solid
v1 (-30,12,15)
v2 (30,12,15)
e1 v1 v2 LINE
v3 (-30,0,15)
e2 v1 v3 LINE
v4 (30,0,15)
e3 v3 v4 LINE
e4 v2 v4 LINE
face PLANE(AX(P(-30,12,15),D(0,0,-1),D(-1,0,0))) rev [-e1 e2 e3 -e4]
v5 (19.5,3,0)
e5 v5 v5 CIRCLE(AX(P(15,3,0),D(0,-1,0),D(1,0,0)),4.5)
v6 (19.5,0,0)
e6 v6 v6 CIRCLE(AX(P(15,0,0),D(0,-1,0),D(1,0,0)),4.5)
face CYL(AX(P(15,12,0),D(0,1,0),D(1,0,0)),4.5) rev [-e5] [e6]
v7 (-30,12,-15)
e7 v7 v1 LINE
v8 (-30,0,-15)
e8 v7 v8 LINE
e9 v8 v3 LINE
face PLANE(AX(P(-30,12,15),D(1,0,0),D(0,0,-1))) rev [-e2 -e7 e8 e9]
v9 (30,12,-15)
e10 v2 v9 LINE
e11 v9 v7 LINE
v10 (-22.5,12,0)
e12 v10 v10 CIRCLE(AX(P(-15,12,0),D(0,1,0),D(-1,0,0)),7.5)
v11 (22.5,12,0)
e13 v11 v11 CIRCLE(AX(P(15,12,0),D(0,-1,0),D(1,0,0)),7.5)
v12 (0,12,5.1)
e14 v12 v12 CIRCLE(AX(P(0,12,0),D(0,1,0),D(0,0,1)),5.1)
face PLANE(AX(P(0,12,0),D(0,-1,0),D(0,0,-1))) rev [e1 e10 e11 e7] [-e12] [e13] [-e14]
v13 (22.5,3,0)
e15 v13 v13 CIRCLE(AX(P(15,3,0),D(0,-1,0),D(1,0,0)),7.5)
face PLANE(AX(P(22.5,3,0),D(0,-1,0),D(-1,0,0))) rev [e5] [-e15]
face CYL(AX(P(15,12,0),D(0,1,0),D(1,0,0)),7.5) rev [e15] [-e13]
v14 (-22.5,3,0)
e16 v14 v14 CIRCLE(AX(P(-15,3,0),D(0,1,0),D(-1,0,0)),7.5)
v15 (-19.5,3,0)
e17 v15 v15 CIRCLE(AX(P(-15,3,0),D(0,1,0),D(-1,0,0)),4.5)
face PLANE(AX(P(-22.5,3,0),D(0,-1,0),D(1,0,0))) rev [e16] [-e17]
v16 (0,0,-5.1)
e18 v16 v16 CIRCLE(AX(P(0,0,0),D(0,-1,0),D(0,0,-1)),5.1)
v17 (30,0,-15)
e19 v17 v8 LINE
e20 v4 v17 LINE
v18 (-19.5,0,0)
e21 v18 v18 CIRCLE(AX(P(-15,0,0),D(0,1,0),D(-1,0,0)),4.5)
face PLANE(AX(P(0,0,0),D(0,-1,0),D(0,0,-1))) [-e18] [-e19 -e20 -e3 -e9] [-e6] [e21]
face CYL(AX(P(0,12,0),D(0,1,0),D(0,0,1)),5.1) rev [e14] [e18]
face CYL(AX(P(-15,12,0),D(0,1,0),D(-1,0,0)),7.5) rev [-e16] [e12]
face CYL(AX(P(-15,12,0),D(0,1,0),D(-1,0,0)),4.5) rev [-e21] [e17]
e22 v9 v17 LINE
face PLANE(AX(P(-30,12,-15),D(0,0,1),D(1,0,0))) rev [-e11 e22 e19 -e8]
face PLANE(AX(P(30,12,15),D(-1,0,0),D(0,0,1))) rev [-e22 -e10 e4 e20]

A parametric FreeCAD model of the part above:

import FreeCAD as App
import Part
import Sketcher

V = App.Vector
Q = App.Units.Quantity

doc = App.newDocument("Part")
body = doc.addObject("PartDesign::Body", "Body")

# Sketch on XZ plane
sketch1 = body.newObject("Sketcher::SketchObject", "Sketch")
sketch1.AttachmentSupport = (doc.getObject("XZ_Plane"), [""])
sketch1.MapMode = "FlatFace"
sketch1.addGeometry([
    Part.LineSegment(V(-30, -15, 0), V(-30, 15, 0)),
    Part.LineSegment(V(-30, 15, 0), V(30, 15, 0)),
    Part.LineSegment(V(30, 15, 0), V(30, -15, 0)),
    Part.LineSegment(V(30, -15, 0), V(-30, -15, 0)),
], False)
sketch1.addConstraint([
    Sketcher.Constraint("Coincident", 0, 2, 1, 1),
    Sketcher.Constraint("Coincident", 1, 2, 2, 1),
    Sketcher.Constraint("Coincident", 2, 2, 3, 1),
    Sketcher.Constraint("Coincident", 3, 2, 0, 1),
    Sketcher.Constraint("Vertical", 0),
    Sketcher.Constraint("Horizontal", 1),
    Sketcher.Constraint("Vertical", 2),
    Sketcher.Constraint("Horizontal", 3),
    Sketcher.Constraint("Symmetric", 0, 2, 2, 2, -1, 1),
    Sketcher.Constraint("DistanceX", 1, 1, 1, 2, Q("60 mm")),
    Sketcher.Constraint("DistanceY", 0, 1, 0, 2, Q("30 mm")),
])
pad1 = body.newObject("PartDesign::Pad", "Pad")
pad1.Profile = sketch1
pad1.Length = 12
pad1.Reversed = True

# Sketch on XY plane
sketch2 = body.newObject("Sketcher::SketchObject", "Sketch001")
sketch2.AttachmentSupport = (doc.getObject("XY_Plane"), [""])
sketch2.MapMode = "FlatFace"
sketch2.addGeometry([
    Part.LineSegment(V(-22.5, 12, 0), V(-22.5, 3, 0)),  # 0
    Part.LineSegment(V(-22.5, 3, 0), V(-19.5, 3, 0)),  # 1
    Part.LineSegment(V(-19.5, 3, 0), V(-19.5, 0, 0)),  # 2
    Part.LineSegment(V(-19.5, 0, 0), V(-15, 0, 0)),  # 3
    Part.LineSegment(V(-15, 0, 0), V(-15, 12, 0)),  # 4
    Part.LineSegment(V(-15, 12, 0), V(-22.5, 12, 0)),  # 5
], False)
sketch2.addGeometry(Part.LineSegment(V(-15, 12, 0), V(-15, 0, 0)), True)  # axis
sketch2.addConstraint([
    Sketcher.Constraint("Coincident", 0, 2, 1, 1),
    Sketcher.Constraint("Coincident", 1, 2, 2, 1),
    Sketcher.Constraint("Coincident", 2, 2, 3, 1),
    Sketcher.Constraint("Coincident", 3, 2, 4, 1),
    Sketcher.Constraint("Coincident", 4, 2, 5, 1),
    Sketcher.Constraint("Coincident", 5, 2, 0, 1),
    Sketcher.Constraint("Vertical", 0),
    Sketcher.Constraint("Horizontal", 1),
    Sketcher.Constraint("Vertical", 2),
    Sketcher.Constraint("Horizontal", 3),
    Sketcher.Constraint("Vertical", 4),
    Sketcher.Constraint("Horizontal", 5),
    Sketcher.Constraint("Vertical", 6),
    Sketcher.Constraint("Coincident", 6, 1, 4, 2),
    Sketcher.Constraint("PointOnObject", 2, 2, -1),
    Sketcher.Constraint("PointOnObject", 6, 2, -1),
    Sketcher.Constraint("Equal", 1, 2),
    Sketcher.Constraint("DistanceX", 1, 1, 1, 2, Q("3 mm")),
    Sketcher.Constraint("DistanceY", 0, 2, 0, 1, Q("9 mm")),
    Sketcher.Constraint("DistanceX", 3, 1, 3, 2, Q("4.5 mm")),
    Sketcher.Constraint("DistanceX", 3, 2, -1, 1, Q("15 mm")),
])
groove = body.newObject("PartDesign::Groove", "Groove")
groove.Profile = sketch2
groove.ReferenceAxis = (sketch2, ["Axis0"])
groove.Angle = 360
doc.recompute()

mirrored = body.newObject("PartDesign::Mirrored", "Mirrored")
mirrored.Originals = [groove]
mirrored.MirrorPlane = (doc.getObject("YZ_Plane"), [""])
body.Tip = mirrored

# Sketch on XZ plane
sketch3 = body.newObject("Sketcher::SketchObject", "Sketch002")
sketch3.AttachmentSupport = (doc.getObject("XZ_Plane"), [""])
sketch3.MapMode = "FlatFace"
sketch3.AttachmentOffset = App.Placement(V(0, 0, -12), App.Rotation())
sketch3.addGeometry(Part.Circle(V(0, 0, 0), V(0, 0, 1), 5), False)
sketch3.addConstraint([
    Sketcher.Constraint("Coincident", 0, 3, -1, 1),
    Sketcher.Constraint("Diameter", 0, Q("10.2 mm")),
])
doc.recompute()
hole = body.newObject("PartDesign::Hole", "Hole")
hole.Profile = sketch3
hole.ThreadType = "None"
hole.Diameter = 10.2
hole.DepthType = "Dimension"
hole.Depth = 12
hole.DrillPoint = "Flat"
hole.Reversed = True

doc.recompute()
